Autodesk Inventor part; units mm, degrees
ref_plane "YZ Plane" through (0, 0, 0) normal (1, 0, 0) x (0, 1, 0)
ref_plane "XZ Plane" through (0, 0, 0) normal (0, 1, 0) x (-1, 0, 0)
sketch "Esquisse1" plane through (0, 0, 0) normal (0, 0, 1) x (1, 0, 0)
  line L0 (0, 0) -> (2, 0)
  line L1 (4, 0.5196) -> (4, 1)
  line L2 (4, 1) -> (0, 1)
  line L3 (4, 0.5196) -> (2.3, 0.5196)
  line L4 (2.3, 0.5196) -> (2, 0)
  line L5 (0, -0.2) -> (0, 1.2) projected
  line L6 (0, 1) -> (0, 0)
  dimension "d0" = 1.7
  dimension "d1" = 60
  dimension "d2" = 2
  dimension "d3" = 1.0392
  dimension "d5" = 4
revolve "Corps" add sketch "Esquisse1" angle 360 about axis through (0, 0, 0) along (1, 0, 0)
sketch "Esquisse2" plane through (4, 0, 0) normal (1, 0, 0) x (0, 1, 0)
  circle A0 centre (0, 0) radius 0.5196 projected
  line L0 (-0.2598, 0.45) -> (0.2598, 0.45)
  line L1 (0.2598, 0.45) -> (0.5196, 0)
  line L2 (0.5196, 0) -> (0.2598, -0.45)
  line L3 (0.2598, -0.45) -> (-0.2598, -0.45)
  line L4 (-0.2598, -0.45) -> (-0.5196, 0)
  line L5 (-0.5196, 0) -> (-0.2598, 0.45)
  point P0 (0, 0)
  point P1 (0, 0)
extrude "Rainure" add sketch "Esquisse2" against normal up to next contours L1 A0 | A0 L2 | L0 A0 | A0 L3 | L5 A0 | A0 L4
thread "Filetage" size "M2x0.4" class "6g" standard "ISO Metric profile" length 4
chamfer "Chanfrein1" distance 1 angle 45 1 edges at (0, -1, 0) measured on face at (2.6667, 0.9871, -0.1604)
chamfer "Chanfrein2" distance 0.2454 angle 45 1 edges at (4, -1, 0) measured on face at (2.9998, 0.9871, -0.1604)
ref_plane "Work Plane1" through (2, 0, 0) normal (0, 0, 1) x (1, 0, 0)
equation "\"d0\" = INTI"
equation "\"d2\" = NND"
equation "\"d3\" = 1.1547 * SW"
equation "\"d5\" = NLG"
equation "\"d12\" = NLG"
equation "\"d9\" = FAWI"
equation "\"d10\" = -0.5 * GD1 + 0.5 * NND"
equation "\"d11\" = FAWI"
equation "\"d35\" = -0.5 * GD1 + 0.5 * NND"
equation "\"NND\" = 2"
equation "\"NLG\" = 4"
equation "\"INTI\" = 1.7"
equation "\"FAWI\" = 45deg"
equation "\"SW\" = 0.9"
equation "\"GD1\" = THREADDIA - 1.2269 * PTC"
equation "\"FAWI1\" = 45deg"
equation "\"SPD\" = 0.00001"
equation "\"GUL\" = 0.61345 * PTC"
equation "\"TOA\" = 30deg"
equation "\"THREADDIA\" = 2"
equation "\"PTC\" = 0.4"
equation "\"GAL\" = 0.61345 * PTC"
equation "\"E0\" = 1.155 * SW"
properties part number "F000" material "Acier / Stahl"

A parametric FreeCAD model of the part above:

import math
import FreeCAD as App
import Part
import Sketcher

V = App.Vector
Q = App.Units.Quantity


def edges_at(feature, points):
    """Names of the edges that pass closest to the given points."""
    edges = feature.Shape.Edges
    near = lambda p: min(range(len(edges)), key=lambda i: edges[i].distToShape(Part.Vertex(*p))[0])
    return sorted({f"Edge{near(p) + 1}" for p in points})

doc = App.newDocument("Part")
body = doc.addObject("PartDesign::Body", "Body")

sketch1 = body.newObject("Sketcher::SketchObject", "Sketch")
sketch1.AttachmentSupport = (doc.getObject("XY_Plane"), [""])
sketch1.MapMode = "FlatFace"
sketch1.addGeometry([
    Part.LineSegment(V(0, 1, 0), V(0, 0, 0)),
    Part.LineSegment(V(0, 0, 0), V(2, 0, 0)),
    Part.LineSegment(V(2, 0, 0), V(2.3, 0.52, 0)),
    Part.LineSegment(V(2.3, 0.52, 0), V(4, 0.52, 0)),
    Part.LineSegment(V(4, 0.52, 0), V(4, 1, 0)),
    Part.LineSegment(V(4, 1, 0), V(0, 1, 0)),
], False)
sketch1.addConstraint([
    Sketcher.Constraint("Coincident", 0, 2, 1, 1),
    Sketcher.Constraint("Coincident", 1, 2, 2, 1),
    Sketcher.Constraint("Coincident", 2, 2, 3, 1),
    Sketcher.Constraint("Coincident", 3, 2, 4, 1),
    Sketcher.Constraint("Coincident", 4, 2, 5, 1),
    Sketcher.Constraint("Coincident", 5, 2, 0, 1),
    Sketcher.Constraint("Vertical", 0),
    Sketcher.Constraint("Horizontal", 1),
    Sketcher.Constraint("Horizontal", 3),
    Sketcher.Constraint("Vertical", 4),
    Sketcher.Constraint("Horizontal", 5),
    Sketcher.Constraint("Coincident", 0, 2, -1, 1),
    Sketcher.Constraint("DistanceX", 1, 1, 1, 2, 2.0),
    Sketcher.Constraint("DistanceX", 5, 2, 5, 1, 4.0),
    Sketcher.Constraint("DistanceX", 3, 1, 3, 2, 1.7),
    Sketcher.Constraint("DistanceY", 0, 2, 0, 1, 1.0),
    Sketcher.Constraint("Angle", 2, Q("59.9993 deg")),
])
revolution = body.newObject("PartDesign::Revolution", "Revolution")
revolution.Profile = sketch1
revolution.ReferenceAxis = (sketch1, ["H_Axis"])
revolution.Angle = 360

sketch2 = body.newObject("Sketcher::SketchObject", "Sketch001")
sketch2.AttachmentSupport = (doc.getObject("YZ_Plane"), [""])
sketch2.MapMode = "FlatFace"
sketch2.AttachmentOffset = App.Placement(V(0, 0, 4), App.Rotation())
sketch2.addGeometry([
    Part.LineSegment(V(0.3, 0.5, 0), V(0.5, 0, 0)),
    Part.ArcOfCircle(Part.Circle(V(0, 0, 0), V(0, 0, 1), 0.5), math.radians(0), math.radians(60)),
    Part.ArcOfCircle(Part.Circle(V(0, 0, 0), V(0, 0, 1), 0.5), math.radians(-60), math.radians(0)),
    Part.LineSegment(V(0.5, 0, 0), V(0.3, -0.5, 0)),
    Part.LineSegment(V(-0.3, 0.5, 0), V(0.3, 0.5, 0)),
    Part.ArcOfCircle(Part.Circle(V(0, 0, 0), V(0, 0, 1), 0.5), math.radians(60), math.radians(120)),
    Part.ArcOfCircle(Part.Circle(V(0, 0, 0), V(0, 0, 1), 0.5), math.radians(-120), math.radians(-60)),
    Part.LineSegment(V(-0.3, -0.5, 0), V(0.3, -0.5, 0)),
    Part.LineSegment(V(-0.5, 0, 0), V(-0.3, 0.5, 0)),
    Part.ArcOfCircle(Part.Circle(V(0, 0, 0), V(0, 0, 1), 0.5), math.radians(120), math.radians(180)),
    Part.ArcOfCircle(Part.Circle(V(0, 0, 0), V(0, 0, 1), 0.5), math.radians(180), math.radians(240)),
    Part.LineSegment(V(-0.5, 0, 0), V(-0.3, -0.5, 0)),
], False)
sketch2.addConstraint([
    Sketcher.Constraint("Coincident", 0, 1, 1, 2),
    Sketcher.Constraint("Coincident", 1, 1, 0, 2),
    Sketcher.Constraint("Coincident", 2, 1, 3, 2),
    Sketcher.Constraint("Coincident", 3, 1, 2, 2),
    Sketcher.Constraint("Coincident", 4, 1, 5, 2),
    Sketcher.Constraint("Coincident", 5, 1, 4, 2),
    Sketcher.Constraint("Coincident", 6, 1, 7, 1),
    Sketcher.Constraint("Coincident", 7, 2, 6, 2),
    Sketcher.Constraint("Coincident", 8, 1, 9, 2),
    Sketcher.Constraint("Coincident", 9, 1, 8, 2),
    Sketcher.Constraint("Coincident", 10, 1, 11, 1),
    Sketcher.Constraint("Coincident", 11, 2, 10, 2),
    Sketcher.Constraint("Horizontal", 4),
    Sketcher.Constraint("Horizontal", 7),
    Sketcher.Constraint("Coincident", 1, 3, -1, 1),
    Sketcher.Constraint("Coincident", 2, 3, -1, 1),
    Sketcher.Constraint("Coincident", 5, 3, -1, 1),
    Sketcher.Constraint("Coincident", 6, 3, -1, 1),
    Sketcher.Constraint("Coincident", 9, 3, -1, 1),
    Sketcher.Constraint("Coincident", 10, 3, -1, 1),
    Sketcher.Constraint("Coincident", 3, 1, 1, 1),
    Sketcher.Constraint("Coincident", 5, 1, 0, 1),
    Sketcher.Constraint("Coincident", 7, 2, 2, 1),
    Sketcher.Constraint("Coincident", 9, 1, 4, 1),
    Sketcher.Constraint("Coincident", 10, 1, 8, 1),
    Sketcher.Constraint("PointOnObject", 1, 1, -1),
    Sketcher.Constraint("PointOnObject", 8, 1, -1),
    Sketcher.Constraint("Parallel", 3, 8),
    Sketcher.Constraint("Parallel", 0, 11),
    Sketcher.Constraint("Angle", 0, Q("-60.0007 deg")),
    Sketcher.Constraint("Radius", 1, 0.5196),
])
pad1 = body.newObject("PartDesign::Pad", "Pad")
pad1.Profile = sketch2
pad1.Type = "UpToFirst"
pad1.Reversed = True
doc.recompute()

chamfer = body.newObject("PartDesign::Chamfer", "Chamfer")
chamfer.Base = (pad1, edges_at(pad1, [(0, -1, 0)]))
chamfer.Size = 1
doc.recompute()

chamfer2 = body.newObject("PartDesign::Chamfer", "Chamfer001")
chamfer2.Base = (chamfer, edges_at(chamfer, [(4, -1, 0)]))
chamfer2.Size = 0.2454

doc.recompute()
